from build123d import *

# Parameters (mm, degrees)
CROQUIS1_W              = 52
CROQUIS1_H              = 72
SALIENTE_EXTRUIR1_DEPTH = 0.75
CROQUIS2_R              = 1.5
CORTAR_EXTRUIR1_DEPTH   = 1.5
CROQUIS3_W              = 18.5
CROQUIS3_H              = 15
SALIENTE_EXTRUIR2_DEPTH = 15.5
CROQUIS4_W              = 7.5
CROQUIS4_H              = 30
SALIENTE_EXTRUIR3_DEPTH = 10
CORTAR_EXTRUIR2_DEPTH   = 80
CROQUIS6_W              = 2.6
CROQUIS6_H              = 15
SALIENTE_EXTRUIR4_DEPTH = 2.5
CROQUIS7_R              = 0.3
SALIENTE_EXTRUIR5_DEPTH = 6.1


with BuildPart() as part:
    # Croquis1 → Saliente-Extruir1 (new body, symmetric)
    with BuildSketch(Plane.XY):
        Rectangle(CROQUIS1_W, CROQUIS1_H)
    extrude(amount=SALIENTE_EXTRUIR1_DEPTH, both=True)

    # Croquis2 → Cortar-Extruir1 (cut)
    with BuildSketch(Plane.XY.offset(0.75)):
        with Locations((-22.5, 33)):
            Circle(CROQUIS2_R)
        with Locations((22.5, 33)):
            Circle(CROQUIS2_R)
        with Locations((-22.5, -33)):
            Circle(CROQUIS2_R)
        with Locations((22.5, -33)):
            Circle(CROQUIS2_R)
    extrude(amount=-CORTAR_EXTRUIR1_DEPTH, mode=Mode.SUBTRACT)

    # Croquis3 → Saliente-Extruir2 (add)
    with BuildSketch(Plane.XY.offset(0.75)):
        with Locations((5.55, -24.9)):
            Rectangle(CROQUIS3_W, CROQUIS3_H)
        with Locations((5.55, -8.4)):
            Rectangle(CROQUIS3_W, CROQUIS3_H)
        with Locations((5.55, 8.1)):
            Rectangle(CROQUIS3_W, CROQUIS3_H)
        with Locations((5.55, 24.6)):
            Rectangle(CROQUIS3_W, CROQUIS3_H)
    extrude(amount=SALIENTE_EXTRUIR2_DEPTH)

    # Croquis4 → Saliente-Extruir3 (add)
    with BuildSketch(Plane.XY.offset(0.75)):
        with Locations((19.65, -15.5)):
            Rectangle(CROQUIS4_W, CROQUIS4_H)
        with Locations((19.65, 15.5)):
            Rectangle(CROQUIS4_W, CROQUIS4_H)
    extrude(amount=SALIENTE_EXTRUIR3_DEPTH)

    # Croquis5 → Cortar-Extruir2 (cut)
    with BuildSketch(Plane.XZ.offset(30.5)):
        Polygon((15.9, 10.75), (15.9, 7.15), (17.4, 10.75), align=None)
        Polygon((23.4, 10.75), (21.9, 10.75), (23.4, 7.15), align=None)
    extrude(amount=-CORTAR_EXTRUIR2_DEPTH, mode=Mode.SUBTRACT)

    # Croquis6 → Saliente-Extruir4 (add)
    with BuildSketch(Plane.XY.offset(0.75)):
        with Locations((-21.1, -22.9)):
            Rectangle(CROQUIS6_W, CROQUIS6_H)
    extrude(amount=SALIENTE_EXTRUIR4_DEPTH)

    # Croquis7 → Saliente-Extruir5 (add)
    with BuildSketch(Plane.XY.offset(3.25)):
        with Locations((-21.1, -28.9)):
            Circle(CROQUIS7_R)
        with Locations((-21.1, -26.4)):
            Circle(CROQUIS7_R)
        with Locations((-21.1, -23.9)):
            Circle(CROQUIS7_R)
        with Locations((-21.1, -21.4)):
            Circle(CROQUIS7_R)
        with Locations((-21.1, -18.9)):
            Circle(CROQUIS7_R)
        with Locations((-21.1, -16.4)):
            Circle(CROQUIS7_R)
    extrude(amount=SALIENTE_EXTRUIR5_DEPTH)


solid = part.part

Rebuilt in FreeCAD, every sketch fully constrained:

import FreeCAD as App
import Part
import Sketcher
from FreeCAD import Vector
Q = App.Units.Quantity


def add_polygon(sketch, points):
    """Adds a closed chain of lines whose ends are joined by coincident constraints."""
    first, n = sketch.GeometryCount, len(points)
    for a, b in zip(points, points[1:] + points[:1]):
        sketch.addGeometry(Part.LineSegment(App.Vector(*a, 0), App.Vector(*b, 0)), False)
    for i in range(n):
        sketch.addConstraint(Sketcher.Constraint("Coincident", first + i, 2, first + (i + 1) % n, 1))

doc = App.newDocument("Part")
body = doc.addObject("PartDesign::Body", "Body")

# Sketch on XY plane
sketch1 = body.newObject("Sketcher::SketchObject", "Sketch")
sketch1.AttachmentSupport = (doc.getObject("XY_Plane"), [""])
sketch1.MapMode = "FlatFace"
add_polygon(sketch1, [(-26, 36), (-26, -36), (26, -36), (26, 36)])  # lines 0-3
sketch1.addConstraint([
    Sketcher.Constraint("Vertical", 0),
    Sketcher.Constraint("Horizontal", 1),
    Sketcher.Constraint("Vertical", 2),
    Sketcher.Constraint("Horizontal", 3),
    Sketcher.Constraint("Symmetric", 0, 2, 2, 2, -1, 1),
    Sketcher.Constraint("DistanceX", 1, 1, 1, 2, Q("52 mm")),
    Sketcher.Constraint("DistanceY", 0, 2, 0, 1, Q("72 mm")),
])
pad1 = body.newObject("PartDesign::Pad", "Pad")
pad1.Profile = sketch1
pad1.Length = 1.5
pad1.Midplane = True

# Sketch on XY plane
sketch2 = body.newObject("Sketcher::SketchObject", "Sketch001")
sketch2.AttachmentSupport = (doc.getObject("XY_Plane"), [""])
sketch2.MapMode = "FlatFace"
sketch2.AttachmentOffset = App.Placement(Vector(0, 0, 0.75), App.Rotation())
sketch2.addGeometry([
    Part.Circle(Vector(-22.5, 33, 0), Vector(0, 0, 1), 1.5),
    Part.Circle(Vector(22.5, 33, 0), Vector(0, 0, 1), 1.5),
    Part.Circle(Vector(-22.5, -33, 0), Vector(0, 0, 1), 1.5),
    Part.Circle(Vector(22.5, -33, 0), Vector(0, 0, 1), 1.5),
], False)
sketch2.addConstraint([
    Sketcher.Constraint("Equal", 0, 1),
    Sketcher.Constraint("Equal", 1, 2),
    Sketcher.Constraint("Equal", 2, 3),
    Sketcher.Constraint("Symmetric", 1, 3, 2, 3, -1, 1),
    Sketcher.Constraint("Symmetric", 0, 3, 3, 3, -1, 1),
    Sketcher.Constraint("Symmetric", 0, 3, 1, 3, -2),
    Sketcher.Constraint("Diameter", 0, Q("3 mm")),
    Sketcher.Constraint("DistanceY", -1, 1, 0, 3, Q("33 mm")),
    Sketcher.Constraint("DistanceX", 0, 3, 1, 3, Q("45 mm")),
])
pocket1 = body.newObject("PartDesign::Pocket", "Pocket")
pocket1.Profile = sketch2
pocket1.Length = 1.5

# Sketch on XY plane
sketch3 = body.newObject("Sketcher::SketchObject", "Sketch002")
sketch3.AttachmentSupport = (doc.getObject("XY_Plane"), [""])
sketch3.MapMode = "FlatFace"
sketch3.AttachmentOffset = App.Placement(Vector(0, 0, 0.75), App.Rotation())
add_polygon(sketch3, [(-3.7, -17.4), (-3.7, -32.4), (14.8, -32.4), (14.8, -17.4)])  # lines 0-3
add_polygon(sketch3, [(-3.7, -0.9), (-3.7, -15.9), (14.8, -15.9), (14.8, -0.9)])  # lines 4-7
add_polygon(sketch3, [(-3.7, 15.6), (-3.7, 0.6), (14.8, 0.6), (14.8, 15.6)])  # lines 8-11
add_polygon(sketch3, [(-3.7, 32.1), (-3.7, 17.1), (14.8, 17.1), (14.8, 32.1)])  # lines 12-15
sketch3.addConstraint([
    Sketcher.Constraint("Vertical", 0),
    Sketcher.Constraint("Horizontal", 1),
    Sketcher.Constraint("Vertical", 2),
    Sketcher.Constraint("Horizontal", 3),
    Sketcher.Constraint("Vertical", 4),
    Sketcher.Constraint("Horizontal", 5),
    Sketcher.Constraint("Vertical", 6),
    Sketcher.Constraint("Horizontal", 7),
    Sketcher.Constraint("Vertical", 8),
    Sketcher.Constraint("Horizontal", 9),
    Sketcher.Constraint("Vertical", 10),
    Sketcher.Constraint("Horizontal", 11),
    Sketcher.Constraint("Vertical", 12),
    Sketcher.Constraint("Horizontal", 13),
    Sketcher.Constraint("Vertical", 14),
    Sketcher.Constraint("Horizontal", 15),
    Sketcher.Constraint("Vertical", 3, 2, 4, 2),
    Sketcher.Constraint("Vertical", 2, 2, 5, 2),
    Sketcher.Constraint("Vertical", 7, 2, 8, 2),
    Sketcher.Constraint("Vertical", 6, 2, 9, 2),
    Sketcher.Constraint("Vertical", 11, 2, 12, 2),
    Sketcher.Constraint("Vertical", 10, 2, 13, 2),
    Sketcher.Constraint("Equal", 2, 4),
    Sketcher.Constraint("Equal", 6, 8),
    Sketcher.Constraint("Equal", 10, 12),
    Sketcher.Constraint("DistanceY", 0, 2, 0, 1, Q("15 mm")),
    Sketcher.Constraint("DistanceX", 1, 1, 1, 2, Q("18.5 mm")),
    Sketcher.Constraint("DistanceY", 3, 2, 8, 2, Q("18 mm")),
    Sketcher.Constraint("DistanceY", 7, 2, 12, 2, Q("18 mm")),
    Sketcher.Constraint("DistanceX", 0, 2, -1, 1, Q("3.7 mm")),
    Sketcher.Constraint("DistanceY", 0, 2, -1, 1, Q("32.4 mm")),
    Sketcher.Constraint("DistanceY", 4, 2, -1, 1, Q("15.9 mm")),
])
pad2 = body.newObject("PartDesign::Pad", "Pad001")
pad2.Profile = sketch3
pad2.Length = 15.5

# Sketch on XY plane
sketch4 = body.newObject("Sketcher::SketchObject", "Sketch003")
sketch4.AttachmentSupport = (doc.getObject("XY_Plane"), [""])
sketch4.MapMode = "FlatFace"
sketch4.AttachmentOffset = App.Placement(Vector(0, 0, 0.75), App.Rotation())
add_polygon(sketch4, [(15.9, -0.5), (15.9, -30.5), (23.4, -30.5), (23.4, -0.5)])  # lines 0-3
add_polygon(sketch4, [(15.9, 30.5), (15.9, 0.5), (23.4, 0.5), (23.4, 30.5)])  # lines 4-7
sketch4.addConstraint([
    Sketcher.Constraint("Vertical", 0),
    Sketcher.Constraint("Horizontal", 1),
    Sketcher.Constraint("Vertical", 2),
    Sketcher.Constraint("Horizontal", 3),
    Sketcher.Constraint("Vertical", 4),
    Sketcher.Constraint("Horizontal", 5),
    Sketcher.Constraint("Vertical", 6),
    Sketcher.Constraint("Horizontal", 7),
    Sketcher.Constraint("Symmetric", 3, 2, 4, 2, -1),
    Sketcher.Constraint("Symmetric", 1, 2, 6, 2, -1),
    Sketcher.Constraint("DistanceY", 0, 2, 0, 1, Q("30 mm")),
    Sketcher.Constraint("DistanceX", 1, 1, 1, 2, Q("7.5 mm")),
    Sketcher.Constraint("DistanceY", 3, 2, 4, 2, Q("1 mm")),
    Sketcher.Constraint("DistanceX", -1, 1, 0, 2, Q("15.9 mm")),
])
pad3 = body.newObject("PartDesign::Pad", "Pad002")
pad3.Profile = sketch4
pad3.Length = 10

# Sketch on XZ plane
sketch5 = body.newObject("Sketcher::SketchObject", "Sketch004")
sketch5.AttachmentSupport = (doc.getObject("XZ_Plane"), [""])
sketch5.MapMode = "FlatFace"
sketch5.AttachmentOffset = App.Placement(Vector(0, 0, 30.5), App.Rotation())
add_polygon(sketch5, [(15.9, 10.75), (15.9, 7.15), (17.4, 10.75)])  # lines 0-2
add_polygon(sketch5, [(23.4, 10.75), (21.9, 10.75), (23.4, 7.15)])  # lines 3-5
sketch5.addConstraint([
    Sketcher.Constraint("Vertical", 0),
    Sketcher.Constraint("Horizontal", 2),
    Sketcher.Constraint("Horizontal", 3),
    Sketcher.Constraint("Vertical", 5),
    Sketcher.Constraint("Horizontal", 2, 2, 3, 2),
    Sketcher.Constraint("Horizontal", 0, 2, 4, 2),
    Sketcher.Constraint("Equal", 2, 3),
    Sketcher.Constraint("DistanceX", 2, 2, 2, 1, Q("1.5 mm")),
    Sketcher.Constraint("DistanceY", 0, 2, 0, 1, Q("3.6 mm")),
    Sketcher.Constraint("DistanceX", 2, 2, 3, 2, Q("6 mm")),
    Sketcher.Constraint("DistanceX", -1, 1, 0, 2, Q("15.9 mm")),
    Sketcher.Constraint("DistanceY", -1, 1, 0, 2, Q("7.15 mm")),
])
pocket2 = body.newObject("PartDesign::Pocket", "Pocket001")
pocket2.Profile = sketch5
pocket2.Length = 80

# Sketch on XY plane
sketch6 = body.newObject("Sketcher::SketchObject", "Sketch005")
sketch6.AttachmentSupport = (doc.getObject("XY_Plane"), [""])
sketch6.MapMode = "FlatFace"
sketch6.AttachmentOffset = App.Placement(Vector(0, 0, 0.75), App.Rotation())
add_polygon(sketch6, [(-22.4, -15.4), (-22.4, -30.4), (-19.8, -30.4), (-19.8, -15.4)])  # lines 0-3
sketch6.addConstraint([
    Sketcher.Constraint("Vertical", 0),
    Sketcher.Constraint("Horizontal", 1),
    Sketcher.Constraint("Vertical", 2),
    Sketcher.Constraint("Horizontal", 3),
    Sketcher.Constraint("DistanceY", 0, 2, 0, 1, Q("15 mm")),
    Sketcher.Constraint("DistanceX", 1, 1, 1, 2, Q("2.6 mm")),
    Sketcher.Constraint("DistanceX", 0, 2, -1, 1, Q("22.4 mm")),
    Sketcher.Constraint("DistanceY", 0, 2, -1, 1, Q("30.4 mm")),
])
pad4 = body.newObject("PartDesign::Pad", "Pad003")
pad4.Profile = sketch6
pad4.Length = 2.5

# Sketch on XY plane
sketch7 = body.newObject("Sketcher::SketchObject", "Sketch006")
sketch7.AttachmentSupport = (doc.getObject("XY_Plane"), [""])
sketch7.MapMode = "FlatFace"
sketch7.AttachmentOffset = App.Placement(Vector(0, 0, 3.25), App.Rotation())
sketch7.addGeometry([
    Part.Circle(Vector(-21.1, -28.9, 0), Vector(0, 0, 1), 0.3),  # 0
    Part.Circle(Vector(-21.1, -26.4, 0), Vector(0, 0, 1), 0.3),  # 1
    Part.Circle(Vector(-21.1, -23.9, 0), Vector(0, 0, 1), 0.3),  # 2
    Part.Circle(Vector(-21.1, -21.4, 0), Vector(0, 0, 1), 0.3),  # 3
    Part.Circle(Vector(-21.1, -18.9, 0), Vector(0, 0, 1), 0.3),  # 4
    Part.Circle(Vector(-21.1, -16.4, 0), Vector(0, 0, 1), 0.3),  # 5
], False)
sketch7.addConstraint([
    Sketcher.Constraint("Equal", 0, 1),
    Sketcher.Constraint("Equal", 1, 2),
    Sketcher.Constraint("Equal", 2, 3),
    Sketcher.Constraint("Equal", 3, 4),
    Sketcher.Constraint("Equal", 4, 5),
    Sketcher.Constraint("Vertical", 0, 3, 1, 3),
    Sketcher.Constraint("Vertical", 1, 3, 2, 3),
    Sketcher.Constraint("Vertical", 2, 3, 3, 3),
    Sketcher.Constraint("Vertical", 3, 3, 4, 3),
    Sketcher.Constraint("Vertical", 4, 3, 5, 3),
    Sketcher.Constraint("Diameter", 0, Q("0.6 mm")),
    Sketcher.Constraint("DistanceY", 0, 3, 2, 3, Q("5 mm")),
    Sketcher.Constraint("DistanceY", 1, 3, 3, 3, Q("5 mm")),
    Sketcher.Constraint("DistanceY", 2, 3, 4, 3, Q("5 mm")),
    Sketcher.Constraint("DistanceY", 3, 3, 5, 3, Q("5 mm")),
    Sketcher.Constraint("DistanceX", 0, 3, -1, 1, Q("21.1 mm")),
    Sketcher.Constraint("DistanceY", 0, 3, -1, 1, Q("28.9 mm")),
    Sketcher.Constraint("DistanceY", 1, 3, -1, 1, Q("26.4 mm")),
])
pad5 = body.newObject("PartDesign::Pad", "Pad004")
pad5.Profile = sketch7
pad5.Length = 6.1

doc.recompute()
